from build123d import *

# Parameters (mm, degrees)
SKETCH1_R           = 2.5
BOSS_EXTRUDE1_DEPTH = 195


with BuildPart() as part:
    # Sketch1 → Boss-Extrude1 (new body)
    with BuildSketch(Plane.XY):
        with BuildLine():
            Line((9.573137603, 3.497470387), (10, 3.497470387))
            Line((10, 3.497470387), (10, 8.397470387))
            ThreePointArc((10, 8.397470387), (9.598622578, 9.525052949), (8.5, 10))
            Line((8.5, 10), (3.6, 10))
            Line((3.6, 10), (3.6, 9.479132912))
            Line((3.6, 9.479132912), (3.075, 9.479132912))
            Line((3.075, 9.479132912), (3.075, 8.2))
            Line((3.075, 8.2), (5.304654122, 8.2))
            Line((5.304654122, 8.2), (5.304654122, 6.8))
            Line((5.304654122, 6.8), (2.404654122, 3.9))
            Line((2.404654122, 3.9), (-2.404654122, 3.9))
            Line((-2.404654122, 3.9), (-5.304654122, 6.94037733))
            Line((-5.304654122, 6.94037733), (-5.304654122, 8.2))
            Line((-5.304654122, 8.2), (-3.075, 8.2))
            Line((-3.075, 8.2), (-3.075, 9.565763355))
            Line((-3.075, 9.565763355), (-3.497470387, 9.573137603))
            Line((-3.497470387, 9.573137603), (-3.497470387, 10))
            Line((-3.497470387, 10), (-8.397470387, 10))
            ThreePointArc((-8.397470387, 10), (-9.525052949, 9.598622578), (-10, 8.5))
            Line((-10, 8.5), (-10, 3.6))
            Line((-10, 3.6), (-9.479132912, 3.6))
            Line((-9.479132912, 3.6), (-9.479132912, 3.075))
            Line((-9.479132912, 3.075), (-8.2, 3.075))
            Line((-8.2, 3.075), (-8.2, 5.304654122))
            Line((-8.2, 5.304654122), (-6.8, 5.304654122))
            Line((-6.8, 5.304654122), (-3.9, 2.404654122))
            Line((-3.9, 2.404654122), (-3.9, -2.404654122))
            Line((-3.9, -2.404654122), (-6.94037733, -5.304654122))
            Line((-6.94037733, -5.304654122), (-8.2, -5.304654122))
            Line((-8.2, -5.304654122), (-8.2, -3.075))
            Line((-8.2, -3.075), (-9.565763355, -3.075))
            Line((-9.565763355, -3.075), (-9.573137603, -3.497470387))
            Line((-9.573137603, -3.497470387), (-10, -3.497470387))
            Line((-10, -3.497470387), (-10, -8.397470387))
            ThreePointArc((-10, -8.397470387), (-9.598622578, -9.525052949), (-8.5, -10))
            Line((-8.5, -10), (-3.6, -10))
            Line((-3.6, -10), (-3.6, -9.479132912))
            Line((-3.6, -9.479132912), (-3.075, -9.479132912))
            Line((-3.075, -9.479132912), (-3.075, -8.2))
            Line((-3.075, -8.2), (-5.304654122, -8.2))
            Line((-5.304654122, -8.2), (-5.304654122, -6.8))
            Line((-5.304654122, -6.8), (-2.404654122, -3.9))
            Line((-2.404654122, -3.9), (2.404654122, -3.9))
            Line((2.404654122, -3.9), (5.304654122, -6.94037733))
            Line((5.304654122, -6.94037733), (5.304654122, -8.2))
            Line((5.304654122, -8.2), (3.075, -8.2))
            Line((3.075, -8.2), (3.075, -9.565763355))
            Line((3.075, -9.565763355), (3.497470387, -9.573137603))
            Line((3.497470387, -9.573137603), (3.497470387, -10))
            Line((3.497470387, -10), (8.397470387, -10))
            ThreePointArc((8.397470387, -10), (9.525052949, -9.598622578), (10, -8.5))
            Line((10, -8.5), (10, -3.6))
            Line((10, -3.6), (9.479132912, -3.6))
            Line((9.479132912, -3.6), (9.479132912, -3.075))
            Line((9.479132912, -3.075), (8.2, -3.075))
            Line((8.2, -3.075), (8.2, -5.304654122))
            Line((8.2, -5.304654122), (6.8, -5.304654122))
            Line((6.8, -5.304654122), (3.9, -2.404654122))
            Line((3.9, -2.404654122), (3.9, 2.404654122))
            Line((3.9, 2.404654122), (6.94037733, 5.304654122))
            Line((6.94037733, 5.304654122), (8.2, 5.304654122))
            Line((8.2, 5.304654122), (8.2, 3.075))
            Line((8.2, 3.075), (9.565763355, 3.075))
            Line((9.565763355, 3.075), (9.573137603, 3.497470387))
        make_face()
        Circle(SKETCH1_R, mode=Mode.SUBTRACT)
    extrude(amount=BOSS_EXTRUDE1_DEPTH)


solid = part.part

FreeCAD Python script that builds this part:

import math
import FreeCAD as App
import Part
import Sketcher
from FreeCAD import Vector

doc = App.newDocument("Part")
body = doc.addObject("PartDesign::Body", "Body")

# Sketch on XY plane
sketch1 = body.newObject("Sketcher::SketchObject", "Sketch")
sketch1.AttachmentSupport = (doc.getObject("XY_Plane"), [""])
sketch1.MapMode = "FlatFace"
sketch1.addGeometry(Part.LineSegment(Vector(9.573138, 3.49747, 0), Vector(10, 3.49747, 0)), False)
sketch1.addGeometry(Part.LineSegment(Vector(10, 3.49747, 0), Vector(10, 8.39747, 0)), False)
sketch1.addGeometry(Part.ArcOfCircle(Part.Circle(Vector(8.503508, 8.500004, 0), Vector(0, 0, 1), 1.5), math.radians(-3.919556), math.radians(90.134015)), False)
sketch1.addGeometry(Part.LineSegment(Vector(8.5, 10, 0), Vector(3.6, 10, 0)), False)
sketch1.addGeometry(Part.LineSegment(Vector(3.6, 10, 0), Vector(3.6, 9.479133, 0)), False)
sketch1.addGeometry(Part.LineSegment(Vector(3.6, 9.479133, 0), Vector(3.075, 9.479133, 0)), False)
sketch1.addGeometry(Part.LineSegment(Vector(3.075, 9.479133, 0), Vector(3.075, 8.2, 0)), False)
sketch1.addGeometry(Part.LineSegment(Vector(3.075, 8.2, 0), Vector(5.304654, 8.2, 0)), False)
sketch1.addGeometry(Part.LineSegment(Vector(5.304654, 8.2, 0), Vector(5.304654, 6.8, 0)), False)
sketch1.addGeometry(Part.LineSegment(Vector(5.304654, 6.8, 0), Vector(2.404654, 3.9, 0)), False)
sketch1.addGeometry(Part.LineSegment(Vector(2.404654, 3.9, 0), Vector(-2.404654, 3.9, 0)), False)
sketch1.addGeometry(Part.LineSegment(Vector(-2.404654, 3.9, 0), Vector(-5.304654, 6.940377, 0)), False)
sketch1.addGeometry(Part.LineSegment(Vector(-5.304654, 6.940377, 0), Vector(-5.304654, 8.2, 0)), False)
sketch1.addGeometry(Part.LineSegment(Vector(-5.304654, 8.2, 0), Vector(-3.075, 8.2, 0)), False)
sketch1.addGeometry(Part.LineSegment(Vector(-3.075, 8.2, 0), Vector(-3.075, 9.565763, 0)), False)
sketch1.addGeometry(Part.LineSegment(Vector(-3.075, 9.565763, 0), Vector(-3.49747, 9.573138, 0)), False)
sketch1.addGeometry(Part.LineSegment(Vector(-3.49747, 9.573138, 0), Vector(-3.49747, 10, 0)), False)
sketch1.addGeometry(Part.LineSegment(Vector(-3.49747, 10, 0), Vector(-8.39747, 10, 0)), False)
sketch1.addGeometry(Part.ArcOfCircle(Part.Circle(Vector(-8.500004, 8.503508, 0), Vector(0, 0, 1), 1.5), math.radians(86.080444), math.radians(180.134015)), False)
sketch1.addGeometry(Part.LineSegment(Vector(-10, 8.5, 0), Vector(-10, 3.6, 0)), False)
sketch1.addGeometry(Part.LineSegment(Vector(-10, 3.6, 0), Vector(-9.479133, 3.6, 0)), False)
sketch1.addGeometry(Part.LineSegment(Vector(-9.479133, 3.6, 0), Vector(-9.479133, 3.075, 0)), False)
sketch1.addGeometry(Part.LineSegment(Vector(-9.479133, 3.075, 0), Vector(-8.2, 3.075, 0)), False)
sketch1.addGeometry(Part.LineSegment(Vector(-8.2, 3.075, 0), Vector(-8.2, 5.304654, 0)), False)
sketch1.addGeometry(Part.LineSegment(Vector(-8.2, 5.304654, 0), Vector(-6.8, 5.304654, 0)), False)
sketch1.addGeometry(Part.LineSegment(Vector(-6.8, 5.304654, 0), Vector(-3.9, 2.404654, 0)), False)
sketch1.addGeometry(Part.LineSegment(Vector(-3.9, 2.404654, 0), Vector(-3.9, -2.404654, 0)), False)
sketch1.addGeometry(Part.LineSegment(Vector(-3.9, -2.404654, 0), Vector(-6.940377, -5.304654, 0)), False)
sketch1.addGeometry(Part.LineSegment(Vector(-6.940377, -5.304654, 0), Vector(-8.2, -5.304654, 0)), False)
sketch1.addGeometry(Part.LineSegment(Vector(-8.2, -5.304654, 0), Vector(-8.2, -3.075, 0)), False)
sketch1.addGeometry(Part.LineSegment(Vector(-8.2, -3.075, 0), Vector(-9.565763, -3.075, 0)), False)
sketch1.addGeometry(Part.LineSegment(Vector(-9.565763, -3.075, 0), Vector(-9.573138, -3.49747, 0)), False)
sketch1.addGeometry(Part.LineSegment(Vector(-9.573138, -3.49747, 0), Vector(-10, -3.49747, 0)), False)
sketch1.addGeometry(Part.LineSegment(Vector(-10, -3.49747, 0), Vector(-10, -8.39747, 0)), False)
sketch1.addGeometry(Part.ArcOfCircle(Part.Circle(Vector(-8.503508, -8.500004, 0), Vector(0, 0, 1), 1.5), math.radians(176.080444), math.radians(270.134015)), False)
sketch1.addGeometry(Part.LineSegment(Vector(-8.5, -10, 0), Vector(-3.6, -10, 0)), False)
sketch1.addGeometry(Part.LineSegment(Vector(-3.6, -10, 0), Vector(-3.6, -9.479133, 0)), False)
sketch1.addGeometry(Part.LineSegment(Vector(-3.6, -9.479133, 0), Vector(-3.075, -9.479133, 0)), False)
sketch1.addGeometry(Part.LineSegment(Vector(-3.075, -9.479133, 0), Vector(-3.075, -8.2, 0)), False)
sketch1.addGeometry(Part.LineSegment(Vector(-3.075, -8.2, 0), Vector(-5.304654, -8.2, 0)), False)
sketch1.addGeometry(Part.LineSegment(Vector(-5.304654, -8.2, 0), Vector(-5.304654, -6.8, 0)), False)
sketch1.addGeometry(Part.LineSegment(Vector(-5.304654, -6.8, 0), Vector(-2.404654, -3.9, 0)), False)
sketch1.addGeometry(Part.LineSegment(Vector(-2.404654, -3.9, 0), Vector(2.404654, -3.9, 0)), False)
sketch1.addGeometry(Part.LineSegment(Vector(2.404654, -3.9, 0), Vector(5.304654, -6.940377, 0)), False)
sketch1.addGeometry(Part.LineSegment(Vector(5.304654, -6.940377, 0), Vector(5.304654, -8.2, 0)), False)
sketch1.addGeometry(Part.LineSegment(Vector(5.304654, -8.2, 0), Vector(3.075, -8.2, 0)), False)
sketch1.addGeometry(Part.LineSegment(Vector(3.075, -8.2, 0), Vector(3.075, -9.565763, 0)), False)
sketch1.addGeometry(Part.LineSegment(Vector(3.075, -9.565763, 0), Vector(3.49747, -9.573138, 0)), False)
sketch1.addGeometry(Part.LineSegment(Vector(3.49747, -9.573138, 0), Vector(3.49747, -10, 0)), False)
sketch1.addGeometry(Part.LineSegment(Vector(3.49747, -10, 0), Vector(8.39747, -10, 0)), False)
sketch1.addGeometry(Part.ArcOfCircle(Part.Circle(Vector(8.500004, -8.503508, 0), Vector(0, 0, 1), 1.5), math.radians(-93.919556), math.radians(0.134015)), False)
sketch1.addGeometry(Part.LineSegment(Vector(10, -8.5, 0), Vector(10, -3.6, 0)), False)
sketch1.addGeometry(Part.LineSegment(Vector(10, -3.6, 0), Vector(9.479133, -3.6, 0)), False)
sketch1.addGeometry(Part.LineSegment(Vector(9.479133, -3.6, 0), Vector(9.479133, -3.075, 0)), False)
sketch1.addGeometry(Part.LineSegment(Vector(9.479133, -3.075, 0), Vector(8.2, -3.075, 0)), False)
sketch1.addGeometry(Part.LineSegment(Vector(8.2, -3.075, 0), Vector(8.2, -5.304654, 0)), False)
sketch1.addGeometry(Part.LineSegment(Vector(8.2, -5.304654, 0), Vector(6.8, -5.304654, 0)), False)
sketch1.addGeometry(Part.LineSegment(Vector(6.8, -5.304654, 0), Vector(3.9, -2.404654, 0)), False)
sketch1.addGeometry(Part.LineSegment(Vector(3.9, -2.404654, 0), Vector(3.9, 2.404654, 0)), False)
sketch1.addGeometry(Part.LineSegment(Vector(3.9, 2.404654, 0), Vector(6.940377, 5.304654, 0)), False)
sketch1.addGeometry(Part.LineSegment(Vector(6.940377, 5.304654, 0), Vector(8.2, 5.304654, 0)), False)
sketch1.addGeometry(Part.LineSegment(Vector(8.2, 5.304654, 0), Vector(8.2, 3.075, 0)), False)
sketch1.addGeometry(Part.LineSegment(Vector(8.2, 3.075, 0), Vector(9.565763, 3.075, 0)), False)
sketch1.addGeometry(Part.LineSegment(Vector(9.565763, 3.075, 0), Vector(9.573138, 3.49747, 0)), False)
sketch1.addGeometry(Part.Circle(Vector(0, 0, 0), Vector(0, 0, 1), 2.5), False)
sketch1.addConstraint(Sketcher.Constraint("Coincident", 0, 2, 1, 1))
sketch1.addConstraint(Sketcher.Constraint("Coincident", 1, 2, 2, 1))
sketch1.addConstraint(Sketcher.Constraint("Coincident", 2, 2, 3, 1))
sketch1.addConstraint(Sketcher.Constraint("Coincident", 3, 2, 4, 1))
sketch1.addConstraint(Sketcher.Constraint("Coincident", 4, 2, 5, 1))
sketch1.addConstraint(Sketcher.Constraint("Coincident", 5, 2, 6, 1))
sketch1.addConstraint(Sketcher.Constraint("Coincident", 6, 2, 7, 1))
sketch1.addConstraint(Sketcher.Constraint("Coincident", 7, 2, 8, 1))
sketch1.addConstraint(Sketcher.Constraint("Coincident", 8, 2, 9, 1))
sketch1.addConstraint(Sketcher.Constraint("Coincident", 9, 2, 10, 1))
sketch1.addConstraint(Sketcher.Constraint("Coincident", 10, 2, 11, 1))
sketch1.addConstraint(Sketcher.Constraint("Coincident", 11, 2, 12, 1))
sketch1.addConstraint(Sketcher.Constraint("Coincident", 12, 2, 13, 1))
sketch1.addConstraint(Sketcher.Constraint("Coincident", 13, 2, 14, 1))
sketch1.addConstraint(Sketcher.Constraint("Coincident", 14, 2, 15, 1))
sketch1.addConstraint(Sketcher.Constraint("Coincident", 15, 2, 16, 1))
sketch1.addConstraint(Sketcher.Constraint("Coincident", 16, 2, 17, 1))
sketch1.addConstraint(Sketcher.Constraint("Coincident", 17, 2, 18, 1))
sketch1.addConstraint(Sketcher.Constraint("Coincident", 18, 2, 19, 1))
sketch1.addConstraint(Sketcher.Constraint("Coincident", 19, 2, 20, 1))
sketch1.addConstraint(Sketcher.Constraint("Coincident", 20, 2, 21, 1))
sketch1.addConstraint(Sketcher.Constraint("Coincident", 21, 2, 22, 1))
sketch1.addConstraint(Sketcher.Constraint("Coincident", 22, 2, 23, 1))
sketch1.addConstraint(Sketcher.Constraint("Coincident", 23, 2, 24, 1))
sketch1.addConstraint(Sketcher.Constraint("Coincident", 24, 2, 25, 1))
sketch1.addConstraint(Sketcher.Constraint("Coincident", 25, 2, 26, 1))
sketch1.addConstraint(Sketcher.Constraint("Coincident", 26, 2, 27, 1))
sketch1.addConstraint(Sketcher.Constraint("Coincident", 27, 2, 28, 1))
sketch1.addConstraint(Sketcher.Constraint("Coincident", 28, 2, 29, 1))
sketch1.addConstraint(Sketcher.Constraint("Coincident", 29, 2, 30, 1))
sketch1.addConstraint(Sketcher.Constraint("Coincident", 30, 2, 31, 1))
sketch1.addConstraint(Sketcher.Constraint("Coincident", 31, 2, 32, 1))
sketch1.addConstraint(Sketcher.Constraint("Coincident", 32, 2, 33, 1))
sketch1.addConstraint(Sketcher.Constraint("Coincident", 33, 2, 34, 1))
sketch1.addConstraint(Sketcher.Constraint("Coincident", 34, 2, 35, 1))
sketch1.addConstraint(Sketcher.Constraint("Coincident", 35, 2, 36, 1))
sketch1.addConstraint(Sketcher.Constraint("Coincident", 36, 2, 37, 1))
sketch1.addConstraint(Sketcher.Constraint("Coincident", 37, 2, 38, 1))
sketch1.addConstraint(Sketcher.Constraint("Coincident", 38, 2, 39, 1))
sketch1.addConstraint(Sketcher.Constraint("Coincident", 39, 2, 40, 1))
sketch1.addConstraint(Sketcher.Constraint("Coincident", 40, 2, 41, 1))
sketch1.addConstraint(Sketcher.Constraint("Coincident", 41, 2, 42, 1))
sketch1.addConstraint(Sketcher.Constraint("Coincident", 42, 2, 43, 1))
sketch1.addConstraint(Sketcher.Constraint("Coincident", 43, 2, 44, 1))
sketch1.addConstraint(Sketcher.Constraint("Coincident", 44, 2, 45, 1))
sketch1.addConstraint(Sketcher.Constraint("Coincident", 45, 2, 46, 1))
sketch1.addConstraint(Sketcher.Constraint("Coincident", 46, 2, 47, 1))
sketch1.addConstraint(Sketcher.Constraint("Coincident", 47, 2, 48, 1))
sketch1.addConstraint(Sketcher.Constraint("Coincident", 48, 2, 49, 1))
sketch1.addConstraint(Sketcher.Constraint("Coincident", 49, 2, 50, 1))
sketch1.addConstraint(Sketcher.Constraint("Coincident", 50, 2, 51, 1))
sketch1.addConstraint(Sketcher.Constraint("Coincident", 51, 2, 52, 1))
sketch1.addConstraint(Sketcher.Constraint("Coincident", 52, 2, 53, 1))
sketch1.addConstraint(Sketcher.Constraint("Coincident", 53, 2, 54, 1))
sketch1.addConstraint(Sketcher.Constraint("Coincident", 54, 2, 55, 1))
sketch1.addConstraint(Sketcher.Constraint("Coincident", 55, 2, 56, 1))
sketch1.addConstraint(Sketcher.Constraint("Coincident", 56, 2, 57, 1))
sketch1.addConstraint(Sketcher.Constraint("Coincident", 57, 2, 58, 1))
sketch1.addConstraint(Sketcher.Constraint("Coincident", 58, 2, 59, 1))
sketch1.addConstraint(Sketcher.Constraint("Coincident", 59, 2, 60, 1))
sketch1.addConstraint(Sketcher.Constraint("Coincident", 60, 2, 61, 1))
sketch1.addConstraint(Sketcher.Constraint("Coincident", 61, 2, 62, 1))
sketch1.addConstraint(Sketcher.Constraint("Coincident", 62, 2, 63, 1))
sketch1.addConstraint(Sketcher.Constraint("Coincident", 63, 2, 0, 1))
sketch1.addConstraint(Sketcher.Constraint("Horizontal", 0))
sketch1.addConstraint(Sketcher.Constraint("Vertical", 1))
sketch1.addConstraint(Sketcher.Constraint("Horizontal", 3))
sketch1.addConstraint(Sketcher.Constraint("Vertical", 4))
sketch1.addConstraint(Sketcher.Constraint("Horizontal", 5))
sketch1.addConstraint(Sketcher.Constraint("Vertical", 6))
sketch1.addConstraint(Sketcher.Constraint("Horizontal", 7))
sketch1.addConstraint(Sketcher.Constraint("Vertical", 8))
sketch1.addConstraint(Sketcher.Constraint("Horizontal", 10))
sketch1.addConstraint(Sketcher.Constraint("Vertical", 12))
sketch1.addConstraint(Sketcher.Constraint("Horizontal", 13))
sketch1.addConstraint(Sketcher.Constraint("Vertical", 14))
sketch1.addConstraint(Sketcher.Constraint("Vertical", 16))
sketch1.addConstraint(Sketcher.Constraint("Horizontal", 17))
sketch1.addConstraint(Sketcher.Constraint("Vertical", 19))
sketch1.addConstraint(Sketcher.Constraint("Horizontal", 20))
sketch1.addConstraint(Sketcher.Constraint("Vertical", 21))
sketch1.addConstraint(Sketcher.Constraint("Horizontal", 22))
sketch1.addConstraint(Sketcher.Constraint("Vertical", 23))
sketch1.addConstraint(Sketcher.Constraint("Horizontal", 24))
sketch1.addConstraint(Sketcher.Constraint("Vertical", 26))
sketch1.addConstraint(Sketcher.Constraint("Horizontal", 28))
sketch1.addConstraint(Sketcher.Constraint("Vertical", 29))
sketch1.addConstraint(Sketcher.Constraint("Horizontal", 30))
sketch1.addConstraint(Sketcher.Constraint("Horizontal", 32))
sketch1.addConstraint(Sketcher.Constraint("Vertical", 33))
sketch1.addConstraint(Sketcher.Constraint("Horizontal", 35))
sketch1.addConstraint(Sketcher.Constraint("Vertical", 36))
sketch1.addConstraint(Sketcher.Constraint("Horizontal", 37))
sketch1.addConstraint(Sketcher.Constraint("Vertical", 38))
sketch1.addConstraint(Sketcher.Constraint("Horizontal", 39))
sketch1.addConstraint(Sketcher.Constraint("Vertical", 40))
sketch1.addConstraint(Sketcher.Constraint("Horizontal", 42))
sketch1.addConstraint(Sketcher.Constraint("Vertical", 44))
sketch1.addConstraint(Sketcher.Constraint("Horizontal", 45))
sketch1.addConstraint(Sketcher.Constraint("Vertical", 46))
sketch1.addConstraint(Sketcher.Constraint("Vertical", 48))
sketch1.addConstraint(Sketcher.Constraint("Horizontal", 49))
sketch1.addConstraint(Sketcher.Constraint("Vertical", 51))
sketch1.addConstraint(Sketcher.Constraint("Horizontal", 52))
sketch1.addConstraint(Sketcher.Constraint("Vertical", 53))
sketch1.addConstraint(Sketcher.Constraint("Horizontal", 54))
sketch1.addConstraint(Sketcher.Constraint("Vertical", 55))
sketch1.addConstraint(Sketcher.Constraint("Horizontal", 56))
sketch1.addConstraint(Sketcher.Constraint("Vertical", 58))
sketch1.addConstraint(Sketcher.Constraint("Horizontal", 60))
sketch1.addConstraint(Sketcher.Constraint("Vertical", 61))
sketch1.addConstraint(Sketcher.Constraint("Horizontal", 62))
sketch1.addConstraint(Sketcher.Constraint("Coincident", 64, 3, -1, 1))
sketch1.addConstraint(Sketcher.Constraint("Diameter", 64, 5.0))
sketch1.addConstraint(Sketcher.Constraint("Radius", 2, 1.5))
sketch1.addConstraint(Sketcher.Constraint("Radius", 18, 1.5))
sketch1.addConstraint(Sketcher.Constraint("Radius", 34, 1.5))
sketch1.addConstraint(Sketcher.Constraint("Radius", 50, 1.5))
sketch1.addConstraint(Sketcher.Constraint("DistanceX", 3, 2, 3, 1, 4.9))
sketch1.addConstraint(Sketcher.Constraint("DistanceX", 17, 2, 17, 1, 4.9))
sketch1.addConstraint(Sketcher.Constraint("DistanceX", 24, 1, 24, 2, 1.4))
sketch1.addConstraint(Sketcher.Constraint("DistanceX", 35, 1, 35, 2, 4.9))
sketch1.addConstraint(Sketcher.Constraint("DistanceX", 49, 1, 49, 2, 4.9))
sketch1.addConstraint(Sketcher.Constraint("DistanceX", 56, 2, 56, 1, 1.4))
sketch1.addConstraint(Sketcher.Constraint("DistanceY", 1, 1, 1, 2, 4.9))
sketch1.addConstraint(Sketcher.Constraint("DistanceY", 8, 2, 8, 1, 1.4))
sketch1.addConstraint(Sketcher.Constraint("DistanceY", 19, 2, 19, 1, 4.9))
sketch1.addConstraint(Sketcher.Constraint("DistanceY", 33, 2, 33, 1, 4.9))
sketch1.addConstraint(Sketcher.Constraint("DistanceY", 40, 1, 40, 2, 1.4))
sketch1.addConstraint(Sketcher.Constraint("DistanceY", 51, 1, 51, 2, 4.9))
sketch1.addConstraint(Sketcher.Constraint("DistanceX", -1, 1, 0, 2, 10.0))
sketch1.addConstraint(Sketcher.Constraint("DistanceY", -1, 1, 2, 2, 10.0))
sketch1.addConstraint(Sketcher.Constraint("DistanceY", -1, 1, 16, 2, 10.0))
sketch1.addConstraint(Sketcher.Constraint("DistanceX", 18, 2, -1, 1, 10.0))
sketch1.addConstraint(Sketcher.Constraint("DistanceX", 32, 2, -1, 1, 10.0))
sketch1.addConstraint(Sketcher.Constraint("DistanceY", 34, 2, -1, 1, 10.0))
sketch1.addConstraint(Sketcher.Constraint("DistanceY", 48, 2, -1, 1, 10.0))
sketch1.addConstraint(Sketcher.Constraint("DistanceX", -1, 1, 50, 2, 10.0))
sketch1.addConstraint(Sketcher.Constraint("DistanceX", -1, 1, 2, 2, 8.5))
sketch1.addConstraint(Sketcher.Constraint("DistanceY", -1, 1, 6, 2, 8.2))
sketch1.addConstraint(Sketcher.Constraint("DistanceY", -1, 1, 9, 2, 3.9))
sketch1.addConstraint(Sketcher.Constraint("DistanceY", -1, 1, 12, 2, 8.2))
sketch1.addConstraint(Sketcher.Constraint("DistanceY", -1, 1, 18, 2, 8.5))
sketch1.addConstraint(Sketcher.Constraint("DistanceX", 22, 2, -1, 1, 8.2))
sketch1.addConstraint(Sketcher.Constraint("DistanceX", 25, 2, -1, 1, 3.9))
sketch1.addConstraint(Sketcher.Constraint("DistanceX", 28, 2, -1, 1, 8.2))
sketch1.addConstraint(Sketcher.Constraint("DistanceX", 34, 2, -1, 1, 8.5))
sketch1.addConstraint(Sketcher.Constraint("DistanceY", 38, 2, -1, 1, 8.2))
sketch1.addConstraint(Sketcher.Constraint("DistanceY", 41, 2, -1, 1, 3.9))
sketch1.addConstraint(Sketcher.Constraint("DistanceY", 44, 2, -1, 1, 8.2))
sketch1.addConstraint(Sketcher.Constraint("DistanceY", 50, 2, -1, 1, 8.5))
sketch1.addConstraint(Sketcher.Constraint("DistanceX", -1, 1, 54, 2, 8.2))
sketch1.addConstraint(Sketcher.Constraint("DistanceX", -1, 1, 57, 2, 3.9))
sketch1.addConstraint(Sketcher.Constraint("DistanceX", -1, 1, 60, 2, 8.2))
sketch1.addConstraint(Sketcher.Constraint("DistanceX", 5, 2, 5, 1, 0.525))
sketch1.addConstraint(Sketcher.Constraint("DistanceX", 37, 1, 37, 2, 0.525))
sketch1.addConstraint(Sketcher.Constraint("DistanceY", 21, 2, 21, 1, 0.525))
sketch1.addConstraint(Sketcher.Constraint("DistanceY", 53, 1, 53, 2, 0.525))
sketch1.addConstraint(Sketcher.Constraint("DistanceX", 13, 2, -1, 1, 3.075))
sketch1.addConstraint(Sketcher.Constraint("DistanceY", 29, 2, -1, 1, 3.075))
sketch1.addConstraint(Sketcher.Constraint("DistanceX", -1, 1, 45, 2, 3.075))
sketch1.addConstraint(Sketcher.Constraint("DistanceY", -1, 1, 61, 2, 3.075))
sketch1.addConstraint(Sketcher.Constraint("DistanceX", 10, 2, 10, 1, 4.809308))
sketch1.addConstraint(Sketcher.Constraint("DistanceX", 42, 1, 42, 2, 4.809308))
sketch1.addConstraint(Sketcher.Constraint("DistanceY", 26, 2, 26, 1, 4.809308))
sketch1.addConstraint(Sketcher.Constraint("DistanceY", 58, 1, 58, 2, 4.809308))
sketch1.addConstraint(Sketcher.Constraint("Distance", 9, 4.101219))
sketch1.addConstraint(Sketcher.Constraint("Distance", 25, 4.101219))
sketch1.addConstraint(Sketcher.Constraint("Distance", 41, 4.101219))
sketch1.addConstraint(Sketcher.Constraint("Distance", 57, 4.101219))
sketch1.addConstraint(Sketcher.Constraint("DistanceX", 0, 1, 0, 2, 0.426862))
sketch1.addConstraint(Sketcher.Constraint("DistanceX", 7, 1, 7, 2, 2.229654))
sketch1.addConstraint(Sketcher.Constraint("DistanceX", 13, 1, 13, 2, 2.229654))
sketch1.addConstraint(Sketcher.Constraint("DistanceX", 20, 1, 20, 2, 0.520867))
sketch1.addConstraint(Sketcher.Constraint("DistanceX", 28, 2, 28, 1, 1.259623))
sketch1.addConstraint(Sketcher.Constraint("DistanceX", 30, 2, 30, 1, 1.365763))
sketch1.addConstraint(Sketcher.Constraint("DistanceX", 32, 2, 32, 1, 0.426862))
sketch1.addConstraint(Sketcher.Constraint("DistanceX", 39, 2, 39, 1, 2.229654))
sketch1.addConstraint(Sketcher.Constraint("DistanceX", 45, 2, 45, 1, 2.229654))
sketch1.addConstraint(Sketcher.Constraint("DistanceX", 52, 2, 52, 1, 0.520867))
sketch1.addConstraint(Sketcher.Constraint("DistanceX", 60, 1, 60, 2, 1.259623))
sketch1.addConstraint(Sketcher.Constraint("DistanceX", 62, 1, 62, 2, 1.365763))
sketch1.addConstraint(Sketcher.Constraint("DistanceY", 4, 2, 4, 1, 0.520867))
sketch1.addConstraint(Sketcher.Constraint("DistanceY", 12, 1, 12, 2, 1.259623))
sketch1.addConstraint(Sketcher.Constraint("DistanceY", 14, 1, 14, 2, 1.365763))
sketch1.addConstraint(Sketcher.Constraint("DistanceY", 16, 1, 16, 2, 0.426862))
sketch1.addConstraint(Sketcher.Constraint("DistanceY", 23, 1, 23, 2, 2.229654))
sketch1.addConstraint(Sketcher.Constraint("DistanceY", 29, 1, 29, 2, 2.229654))
sketch1.addConstraint(Sketcher.Constraint("DistanceY", 36, 1, 36, 2, 0.520867))
sketch1.addConstraint(Sketcher.Constraint("DistanceY", 44, 2, 44, 1, 1.259623))
sketch1.addConstraint(Sketcher.Constraint("DistanceY", 46, 2, 46, 1, 1.365763))
sketch1.addConstraint(Sketcher.Constraint("DistanceY", 48, 2, 48, 1, 0.426862))
sketch1.addConstraint(Sketcher.Constraint("DistanceY", 55, 2, 55, 1, 2.229654))
sketch1.addConstraint(Sketcher.Constraint("DistanceY", 61, 2, 61, 1, 2.229654))
sketch1.addConstraint(Sketcher.Constraint("DistanceX", -1, 1, 2, 3, 8.503508))
sketch1.addConstraint(Sketcher.Constraint("DistanceY", -1, 1, 18, 3, 8.503508))
sketch1.addConstraint(Sketcher.Constraint("DistanceX", 34, 3, -1, 1, 8.503508))
sketch1.addConstraint(Sketcher.Constraint("DistanceY", 50, 3, -1, 1, 8.503508))
pad1 = body.newObject("PartDesign::Pad", "Pad")
pad1.Profile = sketch1
pad1.Length = 195

doc.recompute()
